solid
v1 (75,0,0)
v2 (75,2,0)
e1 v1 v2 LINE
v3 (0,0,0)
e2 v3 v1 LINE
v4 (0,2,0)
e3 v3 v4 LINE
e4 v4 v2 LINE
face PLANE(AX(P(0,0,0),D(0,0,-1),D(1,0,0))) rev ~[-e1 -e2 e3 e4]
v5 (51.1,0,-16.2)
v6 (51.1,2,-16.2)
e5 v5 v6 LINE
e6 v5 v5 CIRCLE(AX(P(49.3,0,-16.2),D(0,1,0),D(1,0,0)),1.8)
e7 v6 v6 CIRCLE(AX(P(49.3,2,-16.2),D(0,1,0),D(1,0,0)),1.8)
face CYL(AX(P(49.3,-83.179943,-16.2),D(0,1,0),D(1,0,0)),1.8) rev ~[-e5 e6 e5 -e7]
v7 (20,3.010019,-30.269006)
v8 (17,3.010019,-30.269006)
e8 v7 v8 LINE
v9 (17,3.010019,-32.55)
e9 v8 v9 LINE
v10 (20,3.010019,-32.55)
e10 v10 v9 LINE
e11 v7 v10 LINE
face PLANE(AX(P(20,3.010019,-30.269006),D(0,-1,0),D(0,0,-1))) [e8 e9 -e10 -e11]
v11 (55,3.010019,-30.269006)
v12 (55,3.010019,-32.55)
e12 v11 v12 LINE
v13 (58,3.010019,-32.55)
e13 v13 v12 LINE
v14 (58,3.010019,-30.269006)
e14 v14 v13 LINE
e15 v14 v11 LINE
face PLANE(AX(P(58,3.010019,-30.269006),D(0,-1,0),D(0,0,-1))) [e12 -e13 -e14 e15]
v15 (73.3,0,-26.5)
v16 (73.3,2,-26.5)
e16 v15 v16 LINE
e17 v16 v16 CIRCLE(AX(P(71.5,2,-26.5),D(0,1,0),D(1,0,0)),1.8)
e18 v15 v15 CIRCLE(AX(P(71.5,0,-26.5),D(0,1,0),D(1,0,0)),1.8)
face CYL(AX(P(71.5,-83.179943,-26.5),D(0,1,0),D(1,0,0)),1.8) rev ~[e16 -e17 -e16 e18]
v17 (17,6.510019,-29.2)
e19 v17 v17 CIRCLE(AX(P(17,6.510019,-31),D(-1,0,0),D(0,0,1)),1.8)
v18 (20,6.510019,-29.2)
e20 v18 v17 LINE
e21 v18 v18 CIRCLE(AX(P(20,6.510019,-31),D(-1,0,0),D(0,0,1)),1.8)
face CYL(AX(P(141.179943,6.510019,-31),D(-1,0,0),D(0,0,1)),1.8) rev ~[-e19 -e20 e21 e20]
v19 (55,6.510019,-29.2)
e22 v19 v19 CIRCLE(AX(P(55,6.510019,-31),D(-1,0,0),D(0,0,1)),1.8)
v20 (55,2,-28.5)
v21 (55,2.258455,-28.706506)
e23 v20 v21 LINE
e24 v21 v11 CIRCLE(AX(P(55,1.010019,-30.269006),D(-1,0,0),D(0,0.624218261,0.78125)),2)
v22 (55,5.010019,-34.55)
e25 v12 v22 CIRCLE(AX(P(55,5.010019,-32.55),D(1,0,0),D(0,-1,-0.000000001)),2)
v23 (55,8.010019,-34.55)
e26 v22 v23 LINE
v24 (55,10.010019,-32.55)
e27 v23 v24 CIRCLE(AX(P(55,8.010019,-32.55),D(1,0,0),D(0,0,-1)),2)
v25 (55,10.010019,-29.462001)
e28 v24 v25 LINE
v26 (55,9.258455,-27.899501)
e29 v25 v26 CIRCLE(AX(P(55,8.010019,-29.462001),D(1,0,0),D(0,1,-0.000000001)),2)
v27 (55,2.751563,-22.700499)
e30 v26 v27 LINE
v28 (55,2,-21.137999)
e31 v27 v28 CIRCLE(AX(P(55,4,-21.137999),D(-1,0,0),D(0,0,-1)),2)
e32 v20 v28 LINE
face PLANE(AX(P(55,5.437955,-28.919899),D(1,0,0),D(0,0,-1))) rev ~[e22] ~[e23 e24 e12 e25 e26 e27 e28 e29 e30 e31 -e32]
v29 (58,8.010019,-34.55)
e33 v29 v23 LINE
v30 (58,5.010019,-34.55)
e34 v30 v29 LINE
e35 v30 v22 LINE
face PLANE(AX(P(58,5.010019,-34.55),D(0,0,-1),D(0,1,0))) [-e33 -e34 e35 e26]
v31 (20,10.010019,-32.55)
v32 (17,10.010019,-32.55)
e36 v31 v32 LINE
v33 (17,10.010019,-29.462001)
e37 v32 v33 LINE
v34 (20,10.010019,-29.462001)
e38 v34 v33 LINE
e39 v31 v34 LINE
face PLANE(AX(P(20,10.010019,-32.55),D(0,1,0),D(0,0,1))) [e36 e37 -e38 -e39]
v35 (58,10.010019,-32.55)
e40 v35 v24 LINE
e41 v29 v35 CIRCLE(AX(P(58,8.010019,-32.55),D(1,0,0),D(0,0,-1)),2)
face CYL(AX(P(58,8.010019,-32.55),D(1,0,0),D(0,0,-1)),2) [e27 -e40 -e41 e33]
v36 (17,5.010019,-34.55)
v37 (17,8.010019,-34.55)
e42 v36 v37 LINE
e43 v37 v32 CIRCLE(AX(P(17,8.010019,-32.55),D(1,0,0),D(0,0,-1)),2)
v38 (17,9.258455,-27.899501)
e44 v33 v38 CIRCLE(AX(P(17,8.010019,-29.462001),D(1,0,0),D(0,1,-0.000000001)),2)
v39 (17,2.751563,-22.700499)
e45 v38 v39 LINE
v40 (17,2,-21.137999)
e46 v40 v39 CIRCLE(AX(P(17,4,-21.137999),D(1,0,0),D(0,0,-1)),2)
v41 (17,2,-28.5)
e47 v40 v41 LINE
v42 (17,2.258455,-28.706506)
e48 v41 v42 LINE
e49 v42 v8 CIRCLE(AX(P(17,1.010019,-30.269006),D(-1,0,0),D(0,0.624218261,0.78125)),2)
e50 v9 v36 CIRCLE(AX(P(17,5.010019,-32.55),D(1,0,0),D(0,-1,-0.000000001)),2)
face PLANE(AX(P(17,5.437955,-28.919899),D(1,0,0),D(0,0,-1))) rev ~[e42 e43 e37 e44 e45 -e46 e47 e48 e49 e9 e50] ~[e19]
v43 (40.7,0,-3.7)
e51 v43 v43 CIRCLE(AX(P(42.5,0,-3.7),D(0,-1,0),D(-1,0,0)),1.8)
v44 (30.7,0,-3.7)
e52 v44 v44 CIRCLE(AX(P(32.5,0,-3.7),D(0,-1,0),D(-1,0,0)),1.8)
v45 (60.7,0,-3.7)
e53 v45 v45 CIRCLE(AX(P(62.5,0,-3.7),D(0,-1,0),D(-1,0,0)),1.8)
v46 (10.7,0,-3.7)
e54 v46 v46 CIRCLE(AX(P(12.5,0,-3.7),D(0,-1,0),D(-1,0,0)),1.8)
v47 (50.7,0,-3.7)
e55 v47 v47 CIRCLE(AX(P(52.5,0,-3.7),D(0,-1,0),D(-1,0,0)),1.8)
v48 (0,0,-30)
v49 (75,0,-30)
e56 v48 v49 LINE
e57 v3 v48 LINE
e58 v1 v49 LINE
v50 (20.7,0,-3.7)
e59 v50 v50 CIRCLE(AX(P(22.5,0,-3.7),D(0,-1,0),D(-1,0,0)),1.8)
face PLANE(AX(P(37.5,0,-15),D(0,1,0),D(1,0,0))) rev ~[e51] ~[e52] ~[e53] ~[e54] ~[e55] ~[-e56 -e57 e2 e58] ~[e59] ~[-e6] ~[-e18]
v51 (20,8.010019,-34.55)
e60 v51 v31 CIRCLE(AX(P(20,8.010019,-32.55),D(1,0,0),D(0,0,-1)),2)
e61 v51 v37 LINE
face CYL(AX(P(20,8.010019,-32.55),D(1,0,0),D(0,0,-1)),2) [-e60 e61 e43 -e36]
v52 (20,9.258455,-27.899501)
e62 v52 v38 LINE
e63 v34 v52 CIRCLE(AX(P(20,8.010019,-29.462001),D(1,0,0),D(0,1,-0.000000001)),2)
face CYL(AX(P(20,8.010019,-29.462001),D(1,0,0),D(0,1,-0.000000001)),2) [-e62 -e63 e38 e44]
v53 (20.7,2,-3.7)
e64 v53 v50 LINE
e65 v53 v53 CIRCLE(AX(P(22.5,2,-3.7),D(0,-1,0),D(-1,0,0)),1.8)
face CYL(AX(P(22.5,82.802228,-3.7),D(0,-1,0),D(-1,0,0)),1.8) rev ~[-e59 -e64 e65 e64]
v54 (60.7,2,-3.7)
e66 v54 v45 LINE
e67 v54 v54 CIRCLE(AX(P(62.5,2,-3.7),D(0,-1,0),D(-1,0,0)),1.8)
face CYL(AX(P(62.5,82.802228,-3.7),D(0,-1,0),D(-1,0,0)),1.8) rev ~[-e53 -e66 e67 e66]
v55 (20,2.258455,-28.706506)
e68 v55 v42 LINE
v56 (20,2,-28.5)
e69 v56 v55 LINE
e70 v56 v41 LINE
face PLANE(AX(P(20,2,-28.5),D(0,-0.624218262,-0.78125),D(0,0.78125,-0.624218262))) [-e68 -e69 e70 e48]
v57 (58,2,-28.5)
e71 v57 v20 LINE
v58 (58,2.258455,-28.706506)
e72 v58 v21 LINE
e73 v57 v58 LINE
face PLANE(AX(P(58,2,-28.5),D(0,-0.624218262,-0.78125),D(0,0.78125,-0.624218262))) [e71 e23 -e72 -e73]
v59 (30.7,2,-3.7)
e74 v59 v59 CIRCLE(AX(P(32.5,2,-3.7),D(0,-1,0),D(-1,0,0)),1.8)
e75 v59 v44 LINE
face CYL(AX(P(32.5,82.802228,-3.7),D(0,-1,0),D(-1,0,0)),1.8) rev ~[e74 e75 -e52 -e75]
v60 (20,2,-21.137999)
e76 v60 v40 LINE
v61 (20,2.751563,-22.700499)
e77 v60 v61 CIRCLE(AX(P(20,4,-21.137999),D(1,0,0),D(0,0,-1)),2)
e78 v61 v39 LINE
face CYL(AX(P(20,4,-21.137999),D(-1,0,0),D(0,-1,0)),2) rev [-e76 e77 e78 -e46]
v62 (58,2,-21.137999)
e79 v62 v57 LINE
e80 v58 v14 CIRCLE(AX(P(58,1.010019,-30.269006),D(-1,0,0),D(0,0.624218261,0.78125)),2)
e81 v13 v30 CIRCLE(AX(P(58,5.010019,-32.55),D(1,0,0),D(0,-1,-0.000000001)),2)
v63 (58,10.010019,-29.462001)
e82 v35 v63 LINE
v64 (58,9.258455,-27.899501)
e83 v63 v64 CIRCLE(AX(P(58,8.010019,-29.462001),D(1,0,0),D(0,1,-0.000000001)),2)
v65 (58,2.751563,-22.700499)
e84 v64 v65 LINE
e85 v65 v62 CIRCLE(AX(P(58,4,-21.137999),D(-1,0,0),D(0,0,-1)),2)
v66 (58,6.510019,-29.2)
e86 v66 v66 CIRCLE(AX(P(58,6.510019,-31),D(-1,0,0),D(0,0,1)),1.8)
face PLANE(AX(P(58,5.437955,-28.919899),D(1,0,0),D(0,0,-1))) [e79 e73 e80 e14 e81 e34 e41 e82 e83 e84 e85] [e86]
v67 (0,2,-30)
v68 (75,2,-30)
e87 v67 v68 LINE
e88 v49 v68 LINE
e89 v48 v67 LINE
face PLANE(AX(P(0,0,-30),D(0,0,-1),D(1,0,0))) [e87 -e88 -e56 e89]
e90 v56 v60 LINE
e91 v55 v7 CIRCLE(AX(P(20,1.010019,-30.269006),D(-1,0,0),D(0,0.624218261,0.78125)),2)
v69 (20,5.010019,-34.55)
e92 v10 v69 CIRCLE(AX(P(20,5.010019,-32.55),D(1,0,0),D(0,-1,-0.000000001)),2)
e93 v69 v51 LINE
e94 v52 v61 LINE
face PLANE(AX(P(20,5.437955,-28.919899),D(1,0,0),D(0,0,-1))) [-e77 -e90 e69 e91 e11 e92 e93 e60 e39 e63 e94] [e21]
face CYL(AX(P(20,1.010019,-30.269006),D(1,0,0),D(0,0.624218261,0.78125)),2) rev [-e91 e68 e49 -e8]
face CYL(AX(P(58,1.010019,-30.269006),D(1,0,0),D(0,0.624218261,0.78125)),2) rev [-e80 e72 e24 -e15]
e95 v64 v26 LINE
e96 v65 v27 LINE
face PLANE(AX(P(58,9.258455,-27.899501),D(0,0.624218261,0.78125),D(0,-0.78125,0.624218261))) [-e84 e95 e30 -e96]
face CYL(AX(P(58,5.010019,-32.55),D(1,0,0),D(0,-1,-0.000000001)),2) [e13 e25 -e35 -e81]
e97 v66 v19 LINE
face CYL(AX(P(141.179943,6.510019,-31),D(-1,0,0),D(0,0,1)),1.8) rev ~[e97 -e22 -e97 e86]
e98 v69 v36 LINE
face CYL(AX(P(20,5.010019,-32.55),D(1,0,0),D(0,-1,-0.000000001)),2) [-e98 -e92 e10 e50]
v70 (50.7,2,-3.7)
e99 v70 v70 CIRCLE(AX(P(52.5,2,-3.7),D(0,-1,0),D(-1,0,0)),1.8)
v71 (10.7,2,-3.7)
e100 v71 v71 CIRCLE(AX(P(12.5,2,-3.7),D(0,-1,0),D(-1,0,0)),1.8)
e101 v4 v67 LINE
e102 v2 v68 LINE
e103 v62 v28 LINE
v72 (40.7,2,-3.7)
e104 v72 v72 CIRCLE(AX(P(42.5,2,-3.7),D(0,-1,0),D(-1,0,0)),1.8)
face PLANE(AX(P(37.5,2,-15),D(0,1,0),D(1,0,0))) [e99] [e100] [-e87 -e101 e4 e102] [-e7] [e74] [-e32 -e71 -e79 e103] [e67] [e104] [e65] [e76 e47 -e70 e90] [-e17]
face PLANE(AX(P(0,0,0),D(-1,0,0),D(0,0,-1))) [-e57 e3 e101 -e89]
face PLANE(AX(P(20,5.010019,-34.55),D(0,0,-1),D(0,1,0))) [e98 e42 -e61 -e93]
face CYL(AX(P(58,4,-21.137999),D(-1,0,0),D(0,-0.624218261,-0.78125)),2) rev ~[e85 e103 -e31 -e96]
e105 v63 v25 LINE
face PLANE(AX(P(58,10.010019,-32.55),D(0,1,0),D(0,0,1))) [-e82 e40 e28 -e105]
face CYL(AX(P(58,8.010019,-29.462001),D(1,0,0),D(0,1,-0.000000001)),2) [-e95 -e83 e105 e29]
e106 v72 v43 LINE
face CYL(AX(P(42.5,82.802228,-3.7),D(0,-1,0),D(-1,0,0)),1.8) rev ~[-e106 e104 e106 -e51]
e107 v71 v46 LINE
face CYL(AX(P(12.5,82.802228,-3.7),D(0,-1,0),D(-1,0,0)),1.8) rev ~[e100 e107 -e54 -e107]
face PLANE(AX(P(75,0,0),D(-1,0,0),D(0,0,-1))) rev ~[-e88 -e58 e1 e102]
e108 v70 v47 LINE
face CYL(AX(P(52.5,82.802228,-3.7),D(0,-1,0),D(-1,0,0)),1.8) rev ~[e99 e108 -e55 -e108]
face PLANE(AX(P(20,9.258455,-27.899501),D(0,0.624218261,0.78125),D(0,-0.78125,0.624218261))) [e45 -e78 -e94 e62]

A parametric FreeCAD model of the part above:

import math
import FreeCAD as App
import Part
import Sketcher
from FreeCAD import Vector
Q = App.Units.Quantity


def edges_at(feature, points):
    """Names of the edges that pass closest to the given points."""
    edges = feature.Shape.Edges
    near = lambda p: min(range(len(edges)), key=lambda i: edges[i].distToShape(Part.Vertex(*p))[0])
    return sorted({f"Edge{near(p) + 1}" for p in points})

doc = App.newDocument("Part")
params = doc.addObject("Spreadsheet::Sheet", "Params")
for row, (alias, value) in enumerate([
    ("sketch1_width", "75 mm"),
    ("sketch1_height", "30 mm"),
    ("pad1_length", "2 mm"),
    ("sketch2_diameter", "3.6 mm"),
    ("hole_diameter", "3.6 mm"),
    ("sketch3_radius", "2 mm"),
    ("sketch3_width", "3 mm"),
    ("sketch3_height", "6.4 mm"),
    ("pad2_length", "3 mm"),
    ("sketch4_radius", "2 mm"),
    ("sketch4_width", "3 mm"),
    ("sketch4_height", "6.4 mm"),
    ("pad3_length", "3 mm"),
    ("fillet_radius", "2 mm"),
    ("sketch5_diameter", "3.6 mm"),
    ("hole2_diameter", "3.6 mm"),
    ("sketch6_diameter", "3.6 mm"),
    ("hole3_diameter", "3.6 mm"),
], start=1):
    params.set(f"A{row}", alias)
    params.set(f"B{row}", "=" + value)
    params.setAlias(f"B{row}", alias)

body = doc.addObject("PartDesign::Body", "Body")

# Sketch on XZ plane
sketch1 = doc.addObject("Sketcher::SketchObject", "Sketch")
body.addObject(sketch1)
sketch1.AttachmentSupport = (doc.XZ_Plane, [""])
sketch1.MapMode = "FlatFace"
sketch1.addGeometry([
    Part.LineSegment(Vector(0, -30, 0), Vector(0, 0, 0)),
    Part.LineSegment(Vector(0, 0, 0), Vector(75, 0, 0)),
    Part.LineSegment(Vector(75, 0, 0), Vector(75, -30, 0)),
    Part.LineSegment(Vector(75, -30, 0), Vector(0, -30, 0)),
], False)
sketch1.addConstraint([
    Sketcher.Constraint("Coincident", 0, 2, 1, 1),
    Sketcher.Constraint("Coincident", 1, 2, 2, 1),
    Sketcher.Constraint("Coincident", 2, 2, 3, 1),
    Sketcher.Constraint("Coincident", 3, 2, 0, 1),
    Sketcher.Constraint("Vertical", 0),
    Sketcher.Constraint("Horizontal", 1),
    Sketcher.Constraint("Vertical", 2),
    Sketcher.Constraint("Horizontal", 3),
    Sketcher.Constraint("Coincident", 0, 2, -1, 1),
    Sketcher.Constraint("DistanceX", 1, 1, 1, 2, Q("75 mm")),
    Sketcher.Constraint("DistanceY", 0, 1, 0, 2, Q("30 mm")),
])
sketch1.setExpression("Constraints[9]", "Params.sketch1_width")
sketch1.setExpression("Constraints[10]", "Params.sketch1_height")
pad1 = doc.addObject("PartDesign::Pad", "Pad")
body.addObject(pad1)
pad1.Profile = sketch1
pad1.setExpression("Length", "Params.pad1_length")
pad1.Reversed = True

# Sketch on XZ plane
sketch2 = doc.addObject("Sketcher::SketchObject", "Sketch001")
body.addObject(sketch2)
sketch2.AttachmentSupport = (doc.XZ_Plane, [""])
sketch2.MapMode = "FlatFace"
sketch2.AttachmentOffset = App.Placement(Vector(0, 0, -2), App.Rotation())
sketch2.addGeometry([
    Part.Circle(Vector(42.5, -3.7, 0), Vector(0, 0, 1), 1.8),  # 0
    Part.Circle(Vector(32.5, -3.7, 0), Vector(0, 0, 1), 1.8),  # 1
    Part.Circle(Vector(22.5, -3.7, 0), Vector(0, 0, 1), 1.8),  # 2
    Part.Circle(Vector(12.5, -3.7, 0), Vector(0, 0, 1), 1.8),  # 3
    Part.Circle(Vector(62.5, -3.7, 0), Vector(0, 0, 1), 1.8),  # 4
    Part.Circle(Vector(52.5, -3.7, 0), Vector(0, 0, 1), 1.8),  # 5
], False)
sketch2.addConstraint([
    Sketcher.Constraint("Equal", 0, 1),
    Sketcher.Constraint("Equal", 1, 2),
    Sketcher.Constraint("Equal", 2, 3),
    Sketcher.Constraint("Equal", 3, 4),
    Sketcher.Constraint("Equal", 4, 5),
    Sketcher.Constraint("Horizontal", 0, 3, 1, 3),
    Sketcher.Constraint("Horizontal", 1, 3, 2, 3),
    Sketcher.Constraint("Horizontal", 2, 3, 3, 3),
    Sketcher.Constraint("Horizontal", 3, 3, 4, 3),
    Sketcher.Constraint("Horizontal", 4, 3, 5, 3),
    Sketcher.Constraint("Diameter", 0, Q("3.6 mm")),
    Sketcher.Constraint("DistanceX", 1, 3, 0, 3, Q("10 mm")),
    Sketcher.Constraint("DistanceX", 2, 3, 1, 3, Q("10 mm")),
    Sketcher.Constraint("DistanceX", 3, 3, 2, 3, Q("10 mm")),
    Sketcher.Constraint("DistanceX", 0, 3, 4, 3, Q("20 mm")),
    Sketcher.Constraint("DistanceX", 0, 3, 5, 3, Q("10 mm")),
    Sketcher.Constraint("DistanceX", -1, 1, 0, 3, Q("42.5 mm")),
    Sketcher.Constraint("DistanceY", 0, 3, -1, 1, Q("3.7 mm")),
])
sketch2.setExpression("Constraints[10]", "Params.sketch2_diameter")
doc.recompute()
hole = doc.addObject("PartDesign::Hole", "Hole")
body.addObject(hole)
hole.Profile = sketch2
hole.ThreadType = "None"
hole.setExpression("Diameter", "Params.hole_diameter")
hole.DepthType = "ThroughAll"
hole.Reversed = True

# Sketch on YZ plane
sketch3 = doc.addObject("Sketcher::SketchObject", "Sketch002")
body.addObject(sketch3)
sketch3.AttachmentSupport = (doc.YZ_Plane, [""])
sketch3.MapMode = "FlatFace"
sketch3.AttachmentOffset = App.Placement(Vector(0, 0, 20), App.Rotation())
sketch3.addGeometry([
    Part.ArcOfCircle(Part.Circle(Vector(8.01, -29.46, 0), Vector(0, 0, 1), 2), math.radians(0), math.radians(51)),  # 0
    Part.LineSegment(Vector(10.01, -29.46, 0), Vector(10.01, -32.55, 0)),  # 1
    Part.ArcOfCircle(Part.Circle(Vector(8.01, -32.55, 0), Vector(0, 0, 1), 2), math.radians(-90), math.radians(0)),  # 2
    Part.LineSegment(Vector(8.01, -34.55, 0), Vector(5.01, -34.55, 0)),  # 3
    Part.ArcOfCircle(Part.Circle(Vector(5.01, -32.55, 0), Vector(0, 0, 1), 2), math.radians(-180), math.radians(-90)),  # 4
    Part.LineSegment(Vector(3.01, -32.55, 0), Vector(3.01, -30.27, 0)),  # 5
    Part.ArcOfCircle(Part.Circle(Vector(1.01, -30.27, 0), Vector(0, 0, 1), 2), math.radians(0), math.radians(51)),  # 6
    Part.LineSegment(Vector(2.26, -28.71, 0), Vector(2, -28.5, 0)),  # 7
    Part.LineSegment(Vector(2, -28.5, 0), Vector(2, -22.1, 0)),  # 8
    Part.LineSegment(Vector(2, -22.1, 0), Vector(9.26, -27.9, 0)),  # 9
], False)
sketch3.addConstraint([
    Sketcher.Constraint("Tangent", 0, 1, 1, 1),
    Sketcher.Constraint("Tangent", 1, 2, 2, 2),
    Sketcher.Constraint("Tangent", 2, 1, 3, 1),
    Sketcher.Constraint("Tangent", 3, 2, 4, 2),
    Sketcher.Constraint("Tangent", 4, 1, 5, 1),
    Sketcher.Constraint("Tangent", 5, 2, 6, 1),
    Sketcher.Constraint("Tangent", 6, 2, 7, 1),
    Sketcher.Constraint("Coincident", 7, 2, 8, 1),
    Sketcher.Constraint("Coincident", 8, 2, 9, 1),
    Sketcher.Constraint("Tangent", 9, 2, 0, 2),
    Sketcher.Constraint("Vertical", 1),
    Sketcher.Constraint("Horizontal", 3),
    Sketcher.Constraint("Vertical", 5),
    Sketcher.Constraint("Vertical", 8),
    Sketcher.Constraint("Equal", 0, 2),
    Sketcher.Constraint("Equal", 2, 4),
    Sketcher.Constraint("Equal", 4, 6),
    Sketcher.Constraint("Parallel", 7, 9),
    Sketcher.Constraint("Radius", 0, Q("2 mm")),
    Sketcher.Constraint("DistanceX", 3, 2, 3, 1, Q("3 mm")),
    Sketcher.Constraint("DistanceY", 8, 1, 8, 2, Q("6.4 mm")),
    Sketcher.Constraint("DistanceX", -1, 1, 7, 2, Q("2 mm")),
    Sketcher.Constraint("DistanceY", 7, 2, -1, 1, Q("28.5 mm")),
    Sketcher.Constraint("DistanceY", 1, 2, 1, 1, Q("3.087999 mm")),
    Sketcher.Constraint("DistanceY", 2, 3, -1, 1, Q("32.55 mm")),
    Sketcher.Constraint("DistanceY", 9, 2, -1, 1, Q("27.899501 mm")),
])
sketch3.setExpression("Constraints[18]", "Params.sketch3_radius")
sketch3.setExpression("Constraints[19]", "Params.sketch3_width")
sketch3.setExpression("Constraints[20]", "Params.sketch3_height")
pad2 = doc.addObject("PartDesign::Pad", "Pad001")
body.addObject(pad2)
pad2.Profile = sketch3
pad2.setExpression("Length", "Params.pad2_length")
pad2.Reversed = True

# Sketch on YZ plane
sketch4 = doc.addObject("Sketcher::SketchObject", "Sketch003")
body.addObject(sketch4)
sketch4.AttachmentSupport = (doc.YZ_Plane, [""])
sketch4.MapMode = "FlatFace"
sketch4.AttachmentOffset = App.Placement(Vector(0, 0, 58), App.Rotation())
sketch4.addGeometry([
    Part.ArcOfCircle(Part.Circle(Vector(8.01, -29.46, 0), Vector(0, 0, 1), 2), math.radians(0), math.radians(51)),  # 0
    Part.LineSegment(Vector(10.01, -29.46, 0), Vector(10.01, -32.55, 0)),  # 1
    Part.ArcOfCircle(Part.Circle(Vector(8.01, -32.55, 0), Vector(0, 0, 1), 2), math.radians(-90), math.radians(0)),  # 2
    Part.LineSegment(Vector(8.01, -34.55, 0), Vector(5.01, -34.55, 0)),  # 3
    Part.ArcOfCircle(Part.Circle(Vector(5.01, -32.55, 0), Vector(0, 0, 1), 2), math.radians(-180), math.radians(-90)),  # 4
    Part.LineSegment(Vector(3.01, -32.55, 0), Vector(3.01, -30.27, 0)),  # 5
    Part.ArcOfCircle(Part.Circle(Vector(1.01, -30.27, 0), Vector(0, 0, 1), 2), math.radians(0), math.radians(51)),  # 6
    Part.LineSegment(Vector(2.26, -28.71, 0), Vector(2, -28.5, 0)),  # 7
    Part.LineSegment(Vector(2, -28.5, 0), Vector(2, -22.1, 0)),  # 8
    Part.LineSegment(Vector(2, -22.1, 0), Vector(9.26, -27.9, 0)),  # 9
], False)
sketch4.addConstraint([
    Sketcher.Constraint("Tangent", 0, 1, 1, 1),
    Sketcher.Constraint("Tangent", 1, 2, 2, 2),
    Sketcher.Constraint("Tangent", 2, 1, 3, 1),
    Sketcher.Constraint("Tangent", 3, 2, 4, 2),
    Sketcher.Constraint("Tangent", 4, 1, 5, 1),
    Sketcher.Constraint("Tangent", 5, 2, 6, 1),
    Sketcher.Constraint("Tangent", 6, 2, 7, 1),
    Sketcher.Constraint("Coincident", 7, 2, 8, 1),
    Sketcher.Constraint("Coincident", 8, 2, 9, 1),
    Sketcher.Constraint("Tangent", 9, 2, 0, 2),
    Sketcher.Constraint("Vertical", 1),
    Sketcher.Constraint("Horizontal", 3),
    Sketcher.Constraint("Vertical", 5),
    Sketcher.Constraint("Vertical", 8),
    Sketcher.Constraint("Equal", 0, 2),
    Sketcher.Constraint("Equal", 2, 4),
    Sketcher.Constraint("Equal", 4, 6),
    Sketcher.Constraint("Parallel", 7, 9),
    Sketcher.Constraint("Radius", 0, Q("2 mm")),
    Sketcher.Constraint("DistanceX", 3, 2, 3, 1, Q("3 mm")),
    Sketcher.Constraint("DistanceY", 8, 1, 8, 2, Q("6.4 mm")),
    Sketcher.Constraint("DistanceX", -1, 1, 7, 2, Q("2 mm")),
    Sketcher.Constraint("DistanceY", 7, 2, -1, 1, Q("28.5 mm")),
    Sketcher.Constraint("DistanceY", 1, 2, 1, 1, Q("3.087999 mm")),
    Sketcher.Constraint("DistanceY", 2, 3, -1, 1, Q("32.55 mm")),
    Sketcher.Constraint("DistanceY", 9, 2, -1, 1, Q("27.899501 mm")),
])
sketch4.setExpression("Constraints[18]", "Params.sketch4_radius")
sketch4.setExpression("Constraints[19]", "Params.sketch4_width")
sketch4.setExpression("Constraints[20]", "Params.sketch4_height")
pad3 = doc.addObject("PartDesign::Pad", "Pad002")
body.addObject(pad3)
pad3.Profile = sketch4
pad3.setExpression("Length", "Params.pad3_length")
pad3.Reversed = True
doc.recompute()

fillet = doc.addObject("PartDesign::Fillet", "Fillet")
body.addObject(fillet)
fillet.Base = (pad3, edges_at(pad3, [(18.5, 2, -22.1), (56.5, 2, -22.1)]))
fillet.setExpression("Radius", "Params.fillet_radius")

# Sketch on YZ plane
sketch5 = doc.addObject("Sketcher::SketchObject", "Sketch004")
body.addObject(sketch5)
sketch5.AttachmentSupport = (doc.YZ_Plane, [""])
sketch5.MapMode = "FlatFace"
sketch5.AttachmentOffset = App.Placement(Vector(0, 0, 58), App.Rotation())
sketch5.addGeometry(Part.Circle(Vector(6.5, -31, 0), Vector(0, 0, 1), 1.8), False)
sketch5.addConstraint([
    Sketcher.Constraint("Diameter", 0, Q("3.6 mm")),
    Sketcher.Constraint("DistanceY", 0, 3, -1, 1, Q("31 mm")),
    Sketcher.Constraint("DistanceX", -1, 1, 0, 3, Q("6.510019 mm")),
])
sketch5.setExpression("Constraints[0]", "Params.sketch5_diameter")
doc.recompute()
hole2 = doc.addObject("PartDesign::Hole", "Hole001")
body.addObject(hole2)
hole2.Profile = sketch5
hole2.ThreadType = "None"
hole2.setExpression("Diameter", "Params.hole2_diameter")
hole2.DepthType = "ThroughAll"

# Sketch on XZ plane
sketch6 = doc.addObject("Sketcher::SketchObject", "Sketch005")
body.addObject(sketch6)
sketch6.AttachmentSupport = (doc.XZ_Plane, [""])
sketch6.MapMode = "FlatFace"
sketch6.addGeometry([
    Part.Circle(Vector(49.3, -16.2, 0), Vector(0, 0, 1), 1.8),
    Part.Circle(Vector(71.5, -26.5, 0), Vector(0, 0, 1), 1.8),
], False)
sketch6.addConstraint([
    Sketcher.Constraint("Equal", 0, 1),
    Sketcher.Constraint("Diameter", 0, Q("3.6 mm")),
    Sketcher.Constraint("DistanceX", -1, 1, 0, 3, Q("49.3 mm")),
    Sketcher.Constraint("DistanceY", 0, 3, -1, 1, Q("16.2 mm")),
    Sketcher.Constraint("DistanceX", -1, 1, 1, 3, Q("71.5 mm")),
    Sketcher.Constraint("DistanceY", 1, 3, -1, 1, Q("26.5 mm")),
])
sketch6.setExpression("Constraints[1]", "Params.sketch6_diameter")
doc.recompute()
hole3 = doc.addObject("PartDesign::Hole", "Hole002")
body.addObject(hole3)
hole3.Profile = sketch6
hole3.ThreadType = "None"
hole3.setExpression("Diameter", "Params.hole3_diameter")
hole3.DepthType = "ThroughAll"

doc.recompute()
